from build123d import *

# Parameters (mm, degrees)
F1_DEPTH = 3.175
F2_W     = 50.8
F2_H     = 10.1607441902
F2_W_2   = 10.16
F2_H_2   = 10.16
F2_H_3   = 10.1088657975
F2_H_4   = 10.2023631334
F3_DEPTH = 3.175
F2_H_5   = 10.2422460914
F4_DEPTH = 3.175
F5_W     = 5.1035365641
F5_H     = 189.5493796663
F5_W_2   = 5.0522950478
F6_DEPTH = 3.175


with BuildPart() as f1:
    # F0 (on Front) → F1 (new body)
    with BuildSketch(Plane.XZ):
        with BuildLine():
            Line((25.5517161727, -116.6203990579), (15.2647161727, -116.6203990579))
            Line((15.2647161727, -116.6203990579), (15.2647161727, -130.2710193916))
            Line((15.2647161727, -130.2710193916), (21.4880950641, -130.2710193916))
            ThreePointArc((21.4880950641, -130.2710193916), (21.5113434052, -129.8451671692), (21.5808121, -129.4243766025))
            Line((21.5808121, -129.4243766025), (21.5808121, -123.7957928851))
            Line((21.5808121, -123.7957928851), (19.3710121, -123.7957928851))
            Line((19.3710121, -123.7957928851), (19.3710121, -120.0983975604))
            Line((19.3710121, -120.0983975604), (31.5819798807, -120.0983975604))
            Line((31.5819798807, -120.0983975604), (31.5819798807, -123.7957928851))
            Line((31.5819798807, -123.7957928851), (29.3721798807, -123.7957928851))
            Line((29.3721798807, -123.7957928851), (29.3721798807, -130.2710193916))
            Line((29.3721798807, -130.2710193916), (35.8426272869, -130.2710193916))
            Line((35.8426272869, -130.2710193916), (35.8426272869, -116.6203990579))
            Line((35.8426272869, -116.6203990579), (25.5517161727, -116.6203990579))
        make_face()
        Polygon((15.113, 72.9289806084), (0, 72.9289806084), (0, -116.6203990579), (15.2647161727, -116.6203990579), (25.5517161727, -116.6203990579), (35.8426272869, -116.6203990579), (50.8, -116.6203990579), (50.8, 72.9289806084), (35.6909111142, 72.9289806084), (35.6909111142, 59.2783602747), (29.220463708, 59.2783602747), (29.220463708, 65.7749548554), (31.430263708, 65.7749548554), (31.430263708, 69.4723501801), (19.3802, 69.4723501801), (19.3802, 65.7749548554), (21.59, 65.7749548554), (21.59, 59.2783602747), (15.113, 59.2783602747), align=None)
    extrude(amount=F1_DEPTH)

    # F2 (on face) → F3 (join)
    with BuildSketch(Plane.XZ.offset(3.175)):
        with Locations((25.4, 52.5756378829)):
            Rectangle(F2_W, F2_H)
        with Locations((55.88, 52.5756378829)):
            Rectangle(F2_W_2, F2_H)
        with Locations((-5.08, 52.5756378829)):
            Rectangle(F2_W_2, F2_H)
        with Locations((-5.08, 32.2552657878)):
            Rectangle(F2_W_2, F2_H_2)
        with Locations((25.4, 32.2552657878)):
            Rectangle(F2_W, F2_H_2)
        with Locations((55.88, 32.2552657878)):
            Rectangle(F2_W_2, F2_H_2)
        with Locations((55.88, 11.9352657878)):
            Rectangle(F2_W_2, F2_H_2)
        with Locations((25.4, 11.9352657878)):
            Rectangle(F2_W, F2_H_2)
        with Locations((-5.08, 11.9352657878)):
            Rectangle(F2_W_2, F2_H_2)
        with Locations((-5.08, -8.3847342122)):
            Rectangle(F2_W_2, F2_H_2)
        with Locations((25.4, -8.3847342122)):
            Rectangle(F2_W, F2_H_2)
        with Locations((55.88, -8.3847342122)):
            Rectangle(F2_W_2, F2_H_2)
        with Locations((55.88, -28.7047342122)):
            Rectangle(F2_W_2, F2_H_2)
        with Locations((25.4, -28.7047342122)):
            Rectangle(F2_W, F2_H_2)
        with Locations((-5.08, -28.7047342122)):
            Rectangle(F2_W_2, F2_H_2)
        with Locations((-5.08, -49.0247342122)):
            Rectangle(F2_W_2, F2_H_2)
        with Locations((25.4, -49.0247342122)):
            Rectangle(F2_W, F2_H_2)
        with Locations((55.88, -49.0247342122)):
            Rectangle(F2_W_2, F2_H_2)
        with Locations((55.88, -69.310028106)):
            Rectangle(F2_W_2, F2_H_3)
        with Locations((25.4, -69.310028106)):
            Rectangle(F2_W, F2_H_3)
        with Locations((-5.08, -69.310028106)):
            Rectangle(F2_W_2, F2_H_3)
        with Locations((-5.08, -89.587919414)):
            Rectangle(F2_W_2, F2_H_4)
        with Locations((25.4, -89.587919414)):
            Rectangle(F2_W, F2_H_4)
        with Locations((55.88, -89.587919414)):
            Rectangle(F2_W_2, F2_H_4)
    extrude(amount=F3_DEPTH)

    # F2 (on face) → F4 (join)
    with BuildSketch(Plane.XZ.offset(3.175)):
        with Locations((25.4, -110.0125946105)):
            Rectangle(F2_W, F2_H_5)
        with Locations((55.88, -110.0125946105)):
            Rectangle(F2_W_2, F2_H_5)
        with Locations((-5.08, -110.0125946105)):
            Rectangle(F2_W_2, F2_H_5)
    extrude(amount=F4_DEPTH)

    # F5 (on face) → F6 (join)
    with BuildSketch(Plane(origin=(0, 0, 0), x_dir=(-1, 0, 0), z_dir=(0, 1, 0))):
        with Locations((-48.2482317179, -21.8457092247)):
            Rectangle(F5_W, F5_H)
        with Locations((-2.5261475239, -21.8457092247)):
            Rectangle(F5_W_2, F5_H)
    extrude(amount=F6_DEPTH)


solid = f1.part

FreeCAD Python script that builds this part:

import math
import FreeCAD as App
import Part
import Sketcher
Q = App.Units.Quantity


def add_polygon(sketch, points):
    """Adds a closed chain of lines whose ends are joined by coincident constraints."""
    first, n = sketch.GeometryCount, len(points)
    for a, b in zip(points, points[1:] + points[:1]):
        sketch.addGeometry(Part.LineSegment(App.Vector(*a, 0), App.Vector(*b, 0)), False)
    for i in range(n):
        sketch.addConstraint(Sketcher.Constraint("Coincident", first + i, 2, first + (i + 1) % n, 1))

doc = App.newDocument("Part")
params = doc.addObject("Spreadsheet::Sheet", "Params")
for row, (alias, value) in enumerate([
    ("sketch1_width", "0.087 in"),
    ("sketch1_width2", "0.255 in"),
    ("sketch1_width3", "0.595 in"),
    ("pad1_length", "0.125 in"),
    ("sketch2_width", "2.8 in"),
    ("sketch2_height", "0.4 in"),
    ("pad2_length", "0.125 in"),
    ("sketch3_width", "2.8 in"),
    ("pad3_length", "0.125 in"),
    ("pad4_length", "0.125 in"),
], start=1):
    params.set(f"A{row}", alias)
    params.set(f"B{row}", "=" + value)
    params.setAlias(f"B{row}", alias)

body = doc.addObject("PartDesign::Body", "Body")

# Sketch on XZ plane
sketch1 = body.newObject("Sketcher::SketchObject", "Sketch")
sketch1.AttachmentSupport = (doc.getObject("XZ_Plane"), [""])
sketch1.MapMode = "FlatFace"
sketch1.addGeometry([
    Part.LineSegment(App.Vector(15.264716, -116.620399, 0), App.Vector(15.264716, -130.271019, 0)),  # 0
    Part.LineSegment(App.Vector(15.264716, -130.271019, 0), App.Vector(21.488095, -130.271019, 0)),  # 1
    Part.ArcOfCircle(Part.Circle(App.Vector(25.4, -130.271019, 0), App.Vector(0, 0, 1), 3.911905), math.radians(167.500726), math.radians(180)),  # 2
    Part.LineSegment(App.Vector(21.580812, -129.424377, 0), App.Vector(21.580812, -123.795793, 0)),  # 3
    Part.LineSegment(App.Vector(21.580812, -123.795793, 0), App.Vector(19.371012, -123.795793, 0)),  # 4
    Part.LineSegment(App.Vector(19.371012, -123.795793, 0), App.Vector(19.371012, -120.098398, 0)),  # 5
    Part.LineSegment(App.Vector(19.371012, -120.098398, 0), App.Vector(31.58198, -120.098398, 0)),  # 6
    Part.LineSegment(App.Vector(31.58198, -120.098398, 0), App.Vector(31.58198, -123.795793, 0)),  # 7
    Part.LineSegment(App.Vector(31.58198, -123.795793, 0), App.Vector(29.37218, -123.795793, 0)),  # 8
    Part.LineSegment(App.Vector(29.37218, -123.795793, 0), App.Vector(29.37218, -130.271019, 0)),  # 9
    Part.LineSegment(App.Vector(29.37218, -130.271019, 0), App.Vector(35.842627, -130.271019, 0)),  # 10
    Part.LineSegment(App.Vector(35.842627, -130.271019, 0), App.Vector(35.842627, -116.620399, 0)),  # 11
    Part.LineSegment(App.Vector(35.842627, -116.620399, 0), App.Vector(50.8, -116.620399, 0)),  # 12
    Part.LineSegment(App.Vector(50.8, -116.620399, 0), App.Vector(50.8, 72.928981, 0)),  # 13
    Part.LineSegment(App.Vector(50.8, 72.928981, 0), App.Vector(35.690911, 72.928981, 0)),  # 14
    Part.LineSegment(App.Vector(35.690911, 72.928981, 0), App.Vector(35.690911, 59.27836, 0)),  # 15
    Part.LineSegment(App.Vector(35.690911, 59.27836, 0), App.Vector(29.220464, 59.27836, 0)),  # 16
    Part.LineSegment(App.Vector(29.220464, 59.27836, 0), App.Vector(29.220464, 65.774955, 0)),  # 17
    Part.LineSegment(App.Vector(29.220464, 65.774955, 0), App.Vector(31.430264, 65.774955, 0)),  # 18
    Part.LineSegment(App.Vector(31.430264, 65.774955, 0), App.Vector(31.430264, 69.47235, 0)),  # 19
    Part.LineSegment(App.Vector(31.430264, 69.47235, 0), App.Vector(19.3802, 69.47235, 0)),  # 20
    Part.LineSegment(App.Vector(19.3802, 69.47235, 0), App.Vector(19.3802, 65.774955, 0)),  # 21
    Part.LineSegment(App.Vector(19.3802, 65.774955, 0), App.Vector(21.59, 65.774955, 0)),  # 22
    Part.LineSegment(App.Vector(21.59, 65.774955, 0), App.Vector(21.59, 59.27836, 0)),  # 23
    Part.LineSegment(App.Vector(21.59, 59.27836, 0), App.Vector(15.113, 59.27836, 0)),  # 24
    Part.LineSegment(App.Vector(15.113, 59.27836, 0), App.Vector(15.113, 72.928981, 0)),  # 25
    Part.LineSegment(App.Vector(15.113, 72.928981, 0), App.Vector(0, 72.928981, 0)),  # 26
    Part.LineSegment(App.Vector(0, 72.928981, 0), App.Vector(0, -116.620399, 0)),  # 27
    Part.LineSegment(App.Vector(0, -116.620399, 0), App.Vector(15.264716, -116.620399, 0)),  # 28
], False)
sketch1.addConstraint([
    Sketcher.Constraint("Coincident", 0, 2, 1, 1),
    Sketcher.Constraint("Coincident", 1, 2, 2, 2),
    Sketcher.Constraint("Coincident", 2, 1, 3, 1),
    Sketcher.Constraint("Coincident", 3, 2, 4, 1),
    Sketcher.Constraint("Coincident", 4, 2, 5, 1),
    Sketcher.Constraint("Coincident", 5, 2, 6, 1),
    Sketcher.Constraint("Coincident", 6, 2, 7, 1),
    Sketcher.Constraint("Coincident", 7, 2, 8, 1),
    Sketcher.Constraint("Coincident", 8, 2, 9, 1),
    Sketcher.Constraint("Coincident", 9, 2, 10, 1),
    Sketcher.Constraint("Coincident", 10, 2, 11, 1),
    Sketcher.Constraint("Coincident", 11, 2, 12, 1),
    Sketcher.Constraint("Coincident", 12, 2, 13, 1),
    Sketcher.Constraint("Coincident", 13, 2, 14, 1),
    Sketcher.Constraint("Coincident", 14, 2, 15, 1),
    Sketcher.Constraint("Coincident", 15, 2, 16, 1),
    Sketcher.Constraint("Coincident", 16, 2, 17, 1),
    Sketcher.Constraint("Coincident", 17, 2, 18, 1),
    Sketcher.Constraint("Coincident", 18, 2, 19, 1),
    Sketcher.Constraint("Coincident", 19, 2, 20, 1),
    Sketcher.Constraint("Coincident", 20, 2, 21, 1),
    Sketcher.Constraint("Coincident", 21, 2, 22, 1),
    Sketcher.Constraint("Coincident", 22, 2, 23, 1),
    Sketcher.Constraint("Coincident", 23, 2, 24, 1),
    Sketcher.Constraint("Coincident", 24, 2, 25, 1),
    Sketcher.Constraint("Coincident", 25, 2, 26, 1),
    Sketcher.Constraint("Coincident", 26, 2, 27, 1),
    Sketcher.Constraint("Coincident", 27, 2, 28, 1),
    Sketcher.Constraint("Coincident", 28, 2, 0, 1),
    Sketcher.Constraint("Vertical", 0),
    Sketcher.Constraint("Horizontal", 1),
    Sketcher.Constraint("Vertical", 3),
    Sketcher.Constraint("Horizontal", 4),
    Sketcher.Constraint("Vertical", 5),
    Sketcher.Constraint("Horizontal", 6),
    Sketcher.Constraint("Vertical", 7),
    Sketcher.Constraint("Horizontal", 8),
    Sketcher.Constraint("Vertical", 9),
    Sketcher.Constraint("Horizontal", 10),
    Sketcher.Constraint("Vertical", 11),
    Sketcher.Constraint("Horizontal", 12),
    Sketcher.Constraint("Vertical", 13),
    Sketcher.Constraint("Horizontal", 14),
    Sketcher.Constraint("Vertical", 15),
    Sketcher.Constraint("Horizontal", 16),
    Sketcher.Constraint("Vertical", 17),
    Sketcher.Constraint("Horizontal", 18),
    Sketcher.Constraint("Vertical", 19),
    Sketcher.Constraint("Horizontal", 20),
    Sketcher.Constraint("Vertical", 21),
    Sketcher.Constraint("Horizontal", 22),
    Sketcher.Constraint("Vertical", 23),
    Sketcher.Constraint("Horizontal", 24),
    Sketcher.Constraint("Vertical", 25),
    Sketcher.Constraint("Horizontal", 26),
    Sketcher.Constraint("Vertical", 27),
    Sketcher.Constraint("Horizontal", 28),
    Sketcher.Constraint("PointOnObject", 26, 2, -2),
    Sketcher.Constraint("Horizontal", 2, 3, 0, 2),
    Sketcher.Constraint("Horizontal", 4, 2, 7, 2),
    Sketcher.Constraint("Horizontal", 1, 2, 9, 2),
    Sketcher.Constraint("Horizontal", 18, 2, 21, 2),
    Sketcher.Constraint("Horizontal", 16, 2, 23, 2),
    Sketcher.Constraint("Horizontal", 14, 2, 25, 2),
    Sketcher.Constraint("Horizontal", 12, 2, 27, 2),
    Sketcher.Constraint("Equal", 4, 8),
    Sketcher.Constraint("Equal", 10, 16),
    Sketcher.Constraint("Equal", 8, 18),
    Sketcher.Constraint("Equal", 18, 22),
    Sketcher.Constraint("Equal", 11, 15),
    Sketcher.Constraint("Equal", 7, 19),
    Sketcher.Constraint("DistanceX", -1, 1, 2, 3, Q("1 in")),
    Sketcher.Constraint("DistanceX", -1, 1, 12, 2, Q("2 in")),
    Sketcher.Constraint("DistanceX", 4, 2, 4, 1, Q("0.087 in")),
    Sketcher.Constraint("DistanceX", 24, 2, 24, 1, Q("0.255 in")),
    Sketcher.Constraint("DistanceX", 26, 2, 26, 1, Q("0.595 in")),
    Sketcher.Constraint("Radius", 2, Q("3.911905 mm")),
    Sketcher.Constraint("DistanceX", 1, 1, 1, 2, Q("6.223379 mm")),
    Sketcher.Constraint("DistanceX", 14, 2, 14, 1, Q("15.109089 mm")),
    Sketcher.Constraint("DistanceY", 0, 2, 0, 1, Q("13.65062 mm")),
    Sketcher.Constraint("DistanceY", 13, 1, 13, 2, Q("189.54938 mm")),
    Sketcher.Constraint("DistanceY", 11, 2, -1, 1, Q("116.620399 mm")),
    Sketcher.Constraint("DistanceY", 6, 2, 11, 2, Q("3.477999 mm")),
    Sketcher.Constraint("DistanceX", 5, 2, 14, 2, Q("16.319899 mm")),
    Sketcher.Constraint("DistanceX", 6, 1, 6, 2, Q("12.210968 mm")),
    Sketcher.Constraint("DistanceX", 10, 1, 10, 2, Q("6.470447 mm")),
    Sketcher.Constraint("DistanceY", 3, 1, 3, 2, Q("5.628584 mm")),
    Sketcher.Constraint("DistanceY", 17, 1, 17, 2, Q("6.496595 mm")),
])
sketch1.setExpression("Constraints[73]", "Params.sketch1_width")
sketch1.setExpression("Constraints[74]", "Params.sketch1_width2")
sketch1.setExpression("Constraints[75]", "Params.sketch1_width3")
pad1 = body.newObject("PartDesign::Pad", "Pad")
pad1.Profile = sketch1
pad1.setExpression("Length", "Params.pad1_length")

# Sketch on XZ plane
sketch2 = body.newObject("Sketcher::SketchObject", "Sketch001")
sketch2.AttachmentSupport = (doc.getObject("XZ_Plane"), [""])
sketch2.MapMode = "FlatFace"
sketch2.AttachmentOffset = App.Placement(App.Vector(0, 0, 0.125 * 25.4), App.Rotation())
add_polygon(sketch2, [(60.96, 47.495266), (60.96, 57.65601), (-10.16, 57.65601), (-10.16, 47.495266)])  # lines 0-3
add_polygon(sketch2, [(-10.16, 37.335266), (-10.16, 27.175266), (60.96, 27.175266), (60.96, 37.335266)])  # lines 4-7
add_polygon(sketch2, [(60.96, 6.855266), (60.96, 17.015266), (-10.16, 17.015266), (-10.16, 6.855266)])  # lines 8-11
add_polygon(sketch2, [(-10.16, -3.304734), (-10.16, -13.464734), (60.96, -13.464734), (60.96, -3.304734)])  # lines 12-15
add_polygon(sketch2, [(60.96, -33.784734), (60.96, -23.624734), (-10.16, -23.624734), (-10.16, -33.784734)])  # lines 16-19
add_polygon(sketch2, [(-10.16, -43.944734), (-10.16, -54.104734), (60.96, -54.104734), (60.96, -43.944734)])  # lines 20-23
add_polygon(sketch2, [(60.96, -74.364461), (60.96, -64.255595), (-10.16, -64.255595), (-10.16, -74.364461)])  # lines 24-27
add_polygon(sketch2, [(-10.16, -84.486738), (-10.16, -94.689101), (60.96, -94.689101), (60.96, -84.486738)])  # lines 28-31
sketch2.addConstraint([
    Sketcher.Constraint("Vertical", 0),
    Sketcher.Constraint("Horizontal", 1),
    Sketcher.Constraint("Vertical", 2),
    Sketcher.Constraint("Horizontal", 3),
    Sketcher.Constraint("Vertical", 4),
    Sketcher.Constraint("Horizontal", 5),
    Sketcher.Constraint("Vertical", 6),
    Sketcher.Constraint("Horizontal", 7),
    Sketcher.Constraint("Vertical", 8),
    Sketcher.Constraint("Horizontal", 9),
    Sketcher.Constraint("Vertical", 10),
    Sketcher.Constraint("Horizontal", 11),
    Sketcher.Constraint("Vertical", 12),
    Sketcher.Constraint("Horizontal", 13),
    Sketcher.Constraint("Vertical", 14),
    Sketcher.Constraint("Horizontal", 15),
    Sketcher.Constraint("Vertical", 16),
    Sketcher.Constraint("Horizontal", 17),
    Sketcher.Constraint("Vertical", 18),
    Sketcher.Constraint("Horizontal", 19),
    Sketcher.Constraint("Vertical", 20),
    Sketcher.Constraint("Horizontal", 21),
    Sketcher.Constraint("Vertical", 22),
    Sketcher.Constraint("Horizontal", 23),
    Sketcher.Constraint("Vertical", 24),
    Sketcher.Constraint("Horizontal", 25),
    Sketcher.Constraint("Vertical", 26),
    Sketcher.Constraint("Horizontal", 27),
    Sketcher.Constraint("Vertical", 28),
    Sketcher.Constraint("Horizontal", 29),
    Sketcher.Constraint("Vertical", 30),
    Sketcher.Constraint("Horizontal", 31),
    Sketcher.Constraint("Vertical", 2, 2, 4, 2),
    Sketcher.Constraint("Vertical", 3, 2, 5, 2),
    Sketcher.Constraint("Vertical", 6, 2, 8, 2),
    Sketcher.Constraint("Vertical", 7, 2, 9, 2),
    Sketcher.Constraint("Vertical", 10, 2, 12, 2),
    Sketcher.Constraint("Vertical", 11, 2, 13, 2),
    Sketcher.Constraint("Vertical", 14, 2, 16, 2),
    Sketcher.Constraint("Vertical", 15, 2, 17, 2),
    Sketcher.Constraint("Vertical", 18, 2, 20, 2),
    Sketcher.Constraint("Vertical", 19, 2, 21, 2),
    Sketcher.Constraint("Vertical", 22, 2, 24, 2),
    Sketcher.Constraint("Vertical", 23, 2, 25, 2),
    Sketcher.Constraint("Vertical", 26, 2, 28, 2),
    Sketcher.Constraint("Vertical", 27, 2, 29, 2),
    Sketcher.Constraint("Equal", 6, 8),
    Sketcher.Constraint("Equal", 10, 12),
    Sketcher.Constraint("Equal", 14, 16),
    Sketcher.Constraint("Equal", 18, 20),
    Sketcher.Constraint("DistanceX", 1, 2, 1, 1, Q("2.8 in")),
    Sketcher.Constraint("DistanceY", 4, 2, 4, 1, Q("0.4 in")),
    Sketcher.Constraint("DistanceY", 12, 2, 7, 2, Q("2 in")),
    Sketcher.Constraint("DistanceY", 16, 2, 5, 2, Q("2 in")),
    Sketcher.Constraint("DistanceY", 18, 2, 9, 2, Q("2 in")),
    Sketcher.Constraint("DistanceY", 20, 2, 15, 2, Q("2 in")),
    Sketcher.Constraint("DistanceX", -1, 1, 0, 2, Q("2.4 in")),
    Sketcher.Constraint("DistanceY", 4, 2, 2, 2, Q("0.8 in")),
    Sketcher.Constraint("DistanceY", 28, 2, -1, 1, Q("94.689101 mm")),
    Sketcher.Constraint("DistanceY", 0, 1, 0, 2, Q("10.160744 mm")),
    Sketcher.Constraint("DistanceY", 24, 1, 24, 2, Q("10.108866 mm")),
    Sketcher.Constraint("DistanceY", 28, 2, 28, 1, Q("10.202363 mm")),
    Sketcher.Constraint("DistanceY", -1, 1, 0, 2, Q("57.65601 mm")),
    Sketcher.Constraint("DistanceY", 26, 2, -1, 1, Q("74.364461 mm")),
])
sketch2.setExpression("Constraints[82]", "Params.sketch2_width")
sketch2.setExpression("Constraints[83]", "Params.sketch2_height")
pad2 = body.newObject("PartDesign::Pad", "Pad001")
pad2.Profile = sketch2
pad2.setExpression("Length", "Params.pad2_length")

# Sketch on XZ plane
sketch3 = body.newObject("Sketcher::SketchObject", "Sketch002")
sketch3.AttachmentSupport = (doc.getObject("XZ_Plane"), [""])
sketch3.MapMode = "FlatFace"
sketch3.AttachmentOffset = App.Placement(App.Vector(0, 0, 0.125 * 25.4), App.Rotation())
add_polygon(sketch3, [(60.96, -115.133718), (60.96, -104.891472), (-10.16, -104.891472), (-10.16, -115.133718)])  # lines 0-3
sketch3.addConstraint([
    Sketcher.Constraint("Vertical", 0),
    Sketcher.Constraint("Horizontal", 1),
    Sketcher.Constraint("Vertical", 2),
    Sketcher.Constraint("Horizontal", 3),
    Sketcher.Constraint("DistanceX", 1, 2, 1, 1, Q("2.8 in")),
    Sketcher.Constraint("DistanceX", -1, 1, 0, 2, Q("2.4 in")),
    Sketcher.Constraint("DistanceY", 0, 1, 0, 2, Q("10.242246 mm")),
    Sketcher.Constraint("DistanceY", 0, 2, -1, 1, Q("104.891472 mm")),
])
sketch3.setExpression("Constraints[8]", "Params.sketch3_width")
pad3 = body.newObject("PartDesign::Pad", "Pad002")
pad3.Profile = sketch3
pad3.setExpression("Length", "Params.pad3_length")

# Sketch on XZ plane
sketch4 = body.newObject("Sketcher::SketchObject", "Sketch003")
sketch4.AttachmentSupport = (doc.getObject("XZ_Plane"), [""])
sketch4.MapMode = "FlatFace"
add_polygon(sketch4, [(50.8, 72.928981), (50.8, -116.620399), (45.696463, -116.620399), (45.696463, 72.928981)])  # lines 0-3
add_polygon(sketch4, [(5.052295, 72.928981), (5.052295, -116.620399), (0, -116.620399), (0, 72.928981)])  # lines 4-7
sketch4.addConstraint([
    Sketcher.Constraint("Vertical", 0),
    Sketcher.Constraint("Horizontal", 1),
    Sketcher.Constraint("Vertical", 2),
    Sketcher.Constraint("Horizontal", 3),
    Sketcher.Constraint("Vertical", 4),
    Sketcher.Constraint("Horizontal", 5),
    Sketcher.Constraint("Vertical", 6),
    Sketcher.Constraint("Horizontal", 7),
    Sketcher.Constraint("PointOnObject", 5, 2, -2),
    Sketcher.Constraint("Horizontal", 1, 2, 4, 2),
    Sketcher.Constraint("Horizontal", 3, 2, 6, 2),
    Sketcher.Constraint("DistanceX", -1, 1, 0, 2, Q("2 in")),
    Sketcher.Constraint("DistanceY", 0, 2, 0, 1, Q("189.54938 mm")),
    Sketcher.Constraint("DistanceY", 0, 2, -1, 1, Q("116.620399 mm")),
    Sketcher.Constraint("DistanceX", 1, 2, 1, 1, Q("5.103537 mm")),
    Sketcher.Constraint("DistanceX", 5, 2, 5, 1, Q("5.052295 mm")),
])
pad4 = body.newObject("PartDesign::Pad", "Pad003")
pad4.Profile = sketch4
pad4.setExpression("Length", "Params.pad4_length")
pad4.Reversed = True

doc.recompute()
